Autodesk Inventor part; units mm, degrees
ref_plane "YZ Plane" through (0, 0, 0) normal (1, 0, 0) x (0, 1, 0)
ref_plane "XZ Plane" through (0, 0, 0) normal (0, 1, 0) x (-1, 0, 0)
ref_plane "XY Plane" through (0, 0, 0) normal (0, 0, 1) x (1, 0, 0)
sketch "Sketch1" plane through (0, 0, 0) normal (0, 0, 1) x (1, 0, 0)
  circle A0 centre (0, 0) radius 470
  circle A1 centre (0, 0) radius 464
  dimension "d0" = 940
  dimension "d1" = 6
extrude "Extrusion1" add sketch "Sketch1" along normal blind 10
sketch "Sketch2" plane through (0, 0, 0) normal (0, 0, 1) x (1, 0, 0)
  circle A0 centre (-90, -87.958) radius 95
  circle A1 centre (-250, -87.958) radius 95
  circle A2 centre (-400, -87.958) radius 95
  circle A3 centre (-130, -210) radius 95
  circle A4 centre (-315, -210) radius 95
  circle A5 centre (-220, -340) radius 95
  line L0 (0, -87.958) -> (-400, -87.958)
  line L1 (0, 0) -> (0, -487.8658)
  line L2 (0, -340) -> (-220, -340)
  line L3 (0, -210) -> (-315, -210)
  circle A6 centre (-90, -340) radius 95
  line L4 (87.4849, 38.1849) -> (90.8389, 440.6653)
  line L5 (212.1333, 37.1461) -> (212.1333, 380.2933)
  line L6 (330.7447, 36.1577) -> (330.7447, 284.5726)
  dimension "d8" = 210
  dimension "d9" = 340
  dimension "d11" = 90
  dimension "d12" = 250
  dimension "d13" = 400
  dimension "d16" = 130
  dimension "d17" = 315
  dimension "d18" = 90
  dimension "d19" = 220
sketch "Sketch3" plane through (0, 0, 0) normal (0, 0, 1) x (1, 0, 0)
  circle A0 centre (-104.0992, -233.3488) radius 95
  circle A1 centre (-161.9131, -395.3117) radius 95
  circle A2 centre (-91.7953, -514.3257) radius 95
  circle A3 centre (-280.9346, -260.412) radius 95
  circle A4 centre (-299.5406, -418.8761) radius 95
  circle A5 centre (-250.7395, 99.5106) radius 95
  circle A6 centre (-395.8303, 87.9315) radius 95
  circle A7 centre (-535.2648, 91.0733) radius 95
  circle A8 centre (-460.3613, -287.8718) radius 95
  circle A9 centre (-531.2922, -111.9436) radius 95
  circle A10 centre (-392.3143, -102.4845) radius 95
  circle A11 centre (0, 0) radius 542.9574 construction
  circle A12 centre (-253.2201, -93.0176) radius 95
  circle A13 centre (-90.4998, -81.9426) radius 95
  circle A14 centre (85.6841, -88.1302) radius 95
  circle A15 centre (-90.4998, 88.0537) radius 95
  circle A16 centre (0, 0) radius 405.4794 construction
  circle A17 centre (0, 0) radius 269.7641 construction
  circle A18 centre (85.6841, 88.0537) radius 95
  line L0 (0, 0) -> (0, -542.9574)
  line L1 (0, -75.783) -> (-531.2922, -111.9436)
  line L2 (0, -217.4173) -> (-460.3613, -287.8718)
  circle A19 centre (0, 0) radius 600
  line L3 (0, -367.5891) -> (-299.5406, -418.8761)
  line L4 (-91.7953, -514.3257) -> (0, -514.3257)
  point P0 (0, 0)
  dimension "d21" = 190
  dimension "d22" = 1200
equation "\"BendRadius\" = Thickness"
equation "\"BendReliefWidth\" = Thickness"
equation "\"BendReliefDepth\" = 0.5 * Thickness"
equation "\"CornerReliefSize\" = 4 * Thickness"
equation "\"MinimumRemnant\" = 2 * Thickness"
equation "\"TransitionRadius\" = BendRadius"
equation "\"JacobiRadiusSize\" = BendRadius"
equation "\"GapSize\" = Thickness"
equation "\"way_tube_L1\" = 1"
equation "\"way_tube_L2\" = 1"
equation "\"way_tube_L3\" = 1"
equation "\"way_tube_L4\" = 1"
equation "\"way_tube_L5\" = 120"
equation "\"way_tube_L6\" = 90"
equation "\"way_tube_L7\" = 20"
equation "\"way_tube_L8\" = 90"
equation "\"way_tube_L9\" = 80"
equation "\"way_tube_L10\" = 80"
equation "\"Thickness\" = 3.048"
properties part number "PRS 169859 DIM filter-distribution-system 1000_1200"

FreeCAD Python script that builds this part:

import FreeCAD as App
import Part
import Sketcher

doc = App.newDocument("Part")
body = doc.addObject("PartDesign::Body", "Body")

sketch1 = doc.addObject("Sketcher::SketchObject", "Sketch")
body.addObject(sketch1)
sketch1.AttachmentSupport = (doc.XY_Plane, [""])
sketch1.MapMode = "FlatFace"
sketch1.addGeometry([
    Part.Circle(App.Vector(0, 0, 0), App.Vector(0, 0, 1), 470),
    Part.Circle(App.Vector(0, 0, 0), App.Vector(0, 0, 1), 464),
], False)
sketch1.addConstraint([
    Sketcher.Constraint("Coincident", 0, 3, -1, 1),
    Sketcher.Constraint("Coincident", 1, 3, -1, 1),
    Sketcher.Constraint("Diameter", 0, 940.0),
    Sketcher.Constraint("Diameter", 1, 928.0),
])
pad1 = doc.addObject("PartDesign::Pad", "Pad")
body.addObject(pad1)
pad1.Profile = sketch1
pad1.Length = 10

doc.recompute()
